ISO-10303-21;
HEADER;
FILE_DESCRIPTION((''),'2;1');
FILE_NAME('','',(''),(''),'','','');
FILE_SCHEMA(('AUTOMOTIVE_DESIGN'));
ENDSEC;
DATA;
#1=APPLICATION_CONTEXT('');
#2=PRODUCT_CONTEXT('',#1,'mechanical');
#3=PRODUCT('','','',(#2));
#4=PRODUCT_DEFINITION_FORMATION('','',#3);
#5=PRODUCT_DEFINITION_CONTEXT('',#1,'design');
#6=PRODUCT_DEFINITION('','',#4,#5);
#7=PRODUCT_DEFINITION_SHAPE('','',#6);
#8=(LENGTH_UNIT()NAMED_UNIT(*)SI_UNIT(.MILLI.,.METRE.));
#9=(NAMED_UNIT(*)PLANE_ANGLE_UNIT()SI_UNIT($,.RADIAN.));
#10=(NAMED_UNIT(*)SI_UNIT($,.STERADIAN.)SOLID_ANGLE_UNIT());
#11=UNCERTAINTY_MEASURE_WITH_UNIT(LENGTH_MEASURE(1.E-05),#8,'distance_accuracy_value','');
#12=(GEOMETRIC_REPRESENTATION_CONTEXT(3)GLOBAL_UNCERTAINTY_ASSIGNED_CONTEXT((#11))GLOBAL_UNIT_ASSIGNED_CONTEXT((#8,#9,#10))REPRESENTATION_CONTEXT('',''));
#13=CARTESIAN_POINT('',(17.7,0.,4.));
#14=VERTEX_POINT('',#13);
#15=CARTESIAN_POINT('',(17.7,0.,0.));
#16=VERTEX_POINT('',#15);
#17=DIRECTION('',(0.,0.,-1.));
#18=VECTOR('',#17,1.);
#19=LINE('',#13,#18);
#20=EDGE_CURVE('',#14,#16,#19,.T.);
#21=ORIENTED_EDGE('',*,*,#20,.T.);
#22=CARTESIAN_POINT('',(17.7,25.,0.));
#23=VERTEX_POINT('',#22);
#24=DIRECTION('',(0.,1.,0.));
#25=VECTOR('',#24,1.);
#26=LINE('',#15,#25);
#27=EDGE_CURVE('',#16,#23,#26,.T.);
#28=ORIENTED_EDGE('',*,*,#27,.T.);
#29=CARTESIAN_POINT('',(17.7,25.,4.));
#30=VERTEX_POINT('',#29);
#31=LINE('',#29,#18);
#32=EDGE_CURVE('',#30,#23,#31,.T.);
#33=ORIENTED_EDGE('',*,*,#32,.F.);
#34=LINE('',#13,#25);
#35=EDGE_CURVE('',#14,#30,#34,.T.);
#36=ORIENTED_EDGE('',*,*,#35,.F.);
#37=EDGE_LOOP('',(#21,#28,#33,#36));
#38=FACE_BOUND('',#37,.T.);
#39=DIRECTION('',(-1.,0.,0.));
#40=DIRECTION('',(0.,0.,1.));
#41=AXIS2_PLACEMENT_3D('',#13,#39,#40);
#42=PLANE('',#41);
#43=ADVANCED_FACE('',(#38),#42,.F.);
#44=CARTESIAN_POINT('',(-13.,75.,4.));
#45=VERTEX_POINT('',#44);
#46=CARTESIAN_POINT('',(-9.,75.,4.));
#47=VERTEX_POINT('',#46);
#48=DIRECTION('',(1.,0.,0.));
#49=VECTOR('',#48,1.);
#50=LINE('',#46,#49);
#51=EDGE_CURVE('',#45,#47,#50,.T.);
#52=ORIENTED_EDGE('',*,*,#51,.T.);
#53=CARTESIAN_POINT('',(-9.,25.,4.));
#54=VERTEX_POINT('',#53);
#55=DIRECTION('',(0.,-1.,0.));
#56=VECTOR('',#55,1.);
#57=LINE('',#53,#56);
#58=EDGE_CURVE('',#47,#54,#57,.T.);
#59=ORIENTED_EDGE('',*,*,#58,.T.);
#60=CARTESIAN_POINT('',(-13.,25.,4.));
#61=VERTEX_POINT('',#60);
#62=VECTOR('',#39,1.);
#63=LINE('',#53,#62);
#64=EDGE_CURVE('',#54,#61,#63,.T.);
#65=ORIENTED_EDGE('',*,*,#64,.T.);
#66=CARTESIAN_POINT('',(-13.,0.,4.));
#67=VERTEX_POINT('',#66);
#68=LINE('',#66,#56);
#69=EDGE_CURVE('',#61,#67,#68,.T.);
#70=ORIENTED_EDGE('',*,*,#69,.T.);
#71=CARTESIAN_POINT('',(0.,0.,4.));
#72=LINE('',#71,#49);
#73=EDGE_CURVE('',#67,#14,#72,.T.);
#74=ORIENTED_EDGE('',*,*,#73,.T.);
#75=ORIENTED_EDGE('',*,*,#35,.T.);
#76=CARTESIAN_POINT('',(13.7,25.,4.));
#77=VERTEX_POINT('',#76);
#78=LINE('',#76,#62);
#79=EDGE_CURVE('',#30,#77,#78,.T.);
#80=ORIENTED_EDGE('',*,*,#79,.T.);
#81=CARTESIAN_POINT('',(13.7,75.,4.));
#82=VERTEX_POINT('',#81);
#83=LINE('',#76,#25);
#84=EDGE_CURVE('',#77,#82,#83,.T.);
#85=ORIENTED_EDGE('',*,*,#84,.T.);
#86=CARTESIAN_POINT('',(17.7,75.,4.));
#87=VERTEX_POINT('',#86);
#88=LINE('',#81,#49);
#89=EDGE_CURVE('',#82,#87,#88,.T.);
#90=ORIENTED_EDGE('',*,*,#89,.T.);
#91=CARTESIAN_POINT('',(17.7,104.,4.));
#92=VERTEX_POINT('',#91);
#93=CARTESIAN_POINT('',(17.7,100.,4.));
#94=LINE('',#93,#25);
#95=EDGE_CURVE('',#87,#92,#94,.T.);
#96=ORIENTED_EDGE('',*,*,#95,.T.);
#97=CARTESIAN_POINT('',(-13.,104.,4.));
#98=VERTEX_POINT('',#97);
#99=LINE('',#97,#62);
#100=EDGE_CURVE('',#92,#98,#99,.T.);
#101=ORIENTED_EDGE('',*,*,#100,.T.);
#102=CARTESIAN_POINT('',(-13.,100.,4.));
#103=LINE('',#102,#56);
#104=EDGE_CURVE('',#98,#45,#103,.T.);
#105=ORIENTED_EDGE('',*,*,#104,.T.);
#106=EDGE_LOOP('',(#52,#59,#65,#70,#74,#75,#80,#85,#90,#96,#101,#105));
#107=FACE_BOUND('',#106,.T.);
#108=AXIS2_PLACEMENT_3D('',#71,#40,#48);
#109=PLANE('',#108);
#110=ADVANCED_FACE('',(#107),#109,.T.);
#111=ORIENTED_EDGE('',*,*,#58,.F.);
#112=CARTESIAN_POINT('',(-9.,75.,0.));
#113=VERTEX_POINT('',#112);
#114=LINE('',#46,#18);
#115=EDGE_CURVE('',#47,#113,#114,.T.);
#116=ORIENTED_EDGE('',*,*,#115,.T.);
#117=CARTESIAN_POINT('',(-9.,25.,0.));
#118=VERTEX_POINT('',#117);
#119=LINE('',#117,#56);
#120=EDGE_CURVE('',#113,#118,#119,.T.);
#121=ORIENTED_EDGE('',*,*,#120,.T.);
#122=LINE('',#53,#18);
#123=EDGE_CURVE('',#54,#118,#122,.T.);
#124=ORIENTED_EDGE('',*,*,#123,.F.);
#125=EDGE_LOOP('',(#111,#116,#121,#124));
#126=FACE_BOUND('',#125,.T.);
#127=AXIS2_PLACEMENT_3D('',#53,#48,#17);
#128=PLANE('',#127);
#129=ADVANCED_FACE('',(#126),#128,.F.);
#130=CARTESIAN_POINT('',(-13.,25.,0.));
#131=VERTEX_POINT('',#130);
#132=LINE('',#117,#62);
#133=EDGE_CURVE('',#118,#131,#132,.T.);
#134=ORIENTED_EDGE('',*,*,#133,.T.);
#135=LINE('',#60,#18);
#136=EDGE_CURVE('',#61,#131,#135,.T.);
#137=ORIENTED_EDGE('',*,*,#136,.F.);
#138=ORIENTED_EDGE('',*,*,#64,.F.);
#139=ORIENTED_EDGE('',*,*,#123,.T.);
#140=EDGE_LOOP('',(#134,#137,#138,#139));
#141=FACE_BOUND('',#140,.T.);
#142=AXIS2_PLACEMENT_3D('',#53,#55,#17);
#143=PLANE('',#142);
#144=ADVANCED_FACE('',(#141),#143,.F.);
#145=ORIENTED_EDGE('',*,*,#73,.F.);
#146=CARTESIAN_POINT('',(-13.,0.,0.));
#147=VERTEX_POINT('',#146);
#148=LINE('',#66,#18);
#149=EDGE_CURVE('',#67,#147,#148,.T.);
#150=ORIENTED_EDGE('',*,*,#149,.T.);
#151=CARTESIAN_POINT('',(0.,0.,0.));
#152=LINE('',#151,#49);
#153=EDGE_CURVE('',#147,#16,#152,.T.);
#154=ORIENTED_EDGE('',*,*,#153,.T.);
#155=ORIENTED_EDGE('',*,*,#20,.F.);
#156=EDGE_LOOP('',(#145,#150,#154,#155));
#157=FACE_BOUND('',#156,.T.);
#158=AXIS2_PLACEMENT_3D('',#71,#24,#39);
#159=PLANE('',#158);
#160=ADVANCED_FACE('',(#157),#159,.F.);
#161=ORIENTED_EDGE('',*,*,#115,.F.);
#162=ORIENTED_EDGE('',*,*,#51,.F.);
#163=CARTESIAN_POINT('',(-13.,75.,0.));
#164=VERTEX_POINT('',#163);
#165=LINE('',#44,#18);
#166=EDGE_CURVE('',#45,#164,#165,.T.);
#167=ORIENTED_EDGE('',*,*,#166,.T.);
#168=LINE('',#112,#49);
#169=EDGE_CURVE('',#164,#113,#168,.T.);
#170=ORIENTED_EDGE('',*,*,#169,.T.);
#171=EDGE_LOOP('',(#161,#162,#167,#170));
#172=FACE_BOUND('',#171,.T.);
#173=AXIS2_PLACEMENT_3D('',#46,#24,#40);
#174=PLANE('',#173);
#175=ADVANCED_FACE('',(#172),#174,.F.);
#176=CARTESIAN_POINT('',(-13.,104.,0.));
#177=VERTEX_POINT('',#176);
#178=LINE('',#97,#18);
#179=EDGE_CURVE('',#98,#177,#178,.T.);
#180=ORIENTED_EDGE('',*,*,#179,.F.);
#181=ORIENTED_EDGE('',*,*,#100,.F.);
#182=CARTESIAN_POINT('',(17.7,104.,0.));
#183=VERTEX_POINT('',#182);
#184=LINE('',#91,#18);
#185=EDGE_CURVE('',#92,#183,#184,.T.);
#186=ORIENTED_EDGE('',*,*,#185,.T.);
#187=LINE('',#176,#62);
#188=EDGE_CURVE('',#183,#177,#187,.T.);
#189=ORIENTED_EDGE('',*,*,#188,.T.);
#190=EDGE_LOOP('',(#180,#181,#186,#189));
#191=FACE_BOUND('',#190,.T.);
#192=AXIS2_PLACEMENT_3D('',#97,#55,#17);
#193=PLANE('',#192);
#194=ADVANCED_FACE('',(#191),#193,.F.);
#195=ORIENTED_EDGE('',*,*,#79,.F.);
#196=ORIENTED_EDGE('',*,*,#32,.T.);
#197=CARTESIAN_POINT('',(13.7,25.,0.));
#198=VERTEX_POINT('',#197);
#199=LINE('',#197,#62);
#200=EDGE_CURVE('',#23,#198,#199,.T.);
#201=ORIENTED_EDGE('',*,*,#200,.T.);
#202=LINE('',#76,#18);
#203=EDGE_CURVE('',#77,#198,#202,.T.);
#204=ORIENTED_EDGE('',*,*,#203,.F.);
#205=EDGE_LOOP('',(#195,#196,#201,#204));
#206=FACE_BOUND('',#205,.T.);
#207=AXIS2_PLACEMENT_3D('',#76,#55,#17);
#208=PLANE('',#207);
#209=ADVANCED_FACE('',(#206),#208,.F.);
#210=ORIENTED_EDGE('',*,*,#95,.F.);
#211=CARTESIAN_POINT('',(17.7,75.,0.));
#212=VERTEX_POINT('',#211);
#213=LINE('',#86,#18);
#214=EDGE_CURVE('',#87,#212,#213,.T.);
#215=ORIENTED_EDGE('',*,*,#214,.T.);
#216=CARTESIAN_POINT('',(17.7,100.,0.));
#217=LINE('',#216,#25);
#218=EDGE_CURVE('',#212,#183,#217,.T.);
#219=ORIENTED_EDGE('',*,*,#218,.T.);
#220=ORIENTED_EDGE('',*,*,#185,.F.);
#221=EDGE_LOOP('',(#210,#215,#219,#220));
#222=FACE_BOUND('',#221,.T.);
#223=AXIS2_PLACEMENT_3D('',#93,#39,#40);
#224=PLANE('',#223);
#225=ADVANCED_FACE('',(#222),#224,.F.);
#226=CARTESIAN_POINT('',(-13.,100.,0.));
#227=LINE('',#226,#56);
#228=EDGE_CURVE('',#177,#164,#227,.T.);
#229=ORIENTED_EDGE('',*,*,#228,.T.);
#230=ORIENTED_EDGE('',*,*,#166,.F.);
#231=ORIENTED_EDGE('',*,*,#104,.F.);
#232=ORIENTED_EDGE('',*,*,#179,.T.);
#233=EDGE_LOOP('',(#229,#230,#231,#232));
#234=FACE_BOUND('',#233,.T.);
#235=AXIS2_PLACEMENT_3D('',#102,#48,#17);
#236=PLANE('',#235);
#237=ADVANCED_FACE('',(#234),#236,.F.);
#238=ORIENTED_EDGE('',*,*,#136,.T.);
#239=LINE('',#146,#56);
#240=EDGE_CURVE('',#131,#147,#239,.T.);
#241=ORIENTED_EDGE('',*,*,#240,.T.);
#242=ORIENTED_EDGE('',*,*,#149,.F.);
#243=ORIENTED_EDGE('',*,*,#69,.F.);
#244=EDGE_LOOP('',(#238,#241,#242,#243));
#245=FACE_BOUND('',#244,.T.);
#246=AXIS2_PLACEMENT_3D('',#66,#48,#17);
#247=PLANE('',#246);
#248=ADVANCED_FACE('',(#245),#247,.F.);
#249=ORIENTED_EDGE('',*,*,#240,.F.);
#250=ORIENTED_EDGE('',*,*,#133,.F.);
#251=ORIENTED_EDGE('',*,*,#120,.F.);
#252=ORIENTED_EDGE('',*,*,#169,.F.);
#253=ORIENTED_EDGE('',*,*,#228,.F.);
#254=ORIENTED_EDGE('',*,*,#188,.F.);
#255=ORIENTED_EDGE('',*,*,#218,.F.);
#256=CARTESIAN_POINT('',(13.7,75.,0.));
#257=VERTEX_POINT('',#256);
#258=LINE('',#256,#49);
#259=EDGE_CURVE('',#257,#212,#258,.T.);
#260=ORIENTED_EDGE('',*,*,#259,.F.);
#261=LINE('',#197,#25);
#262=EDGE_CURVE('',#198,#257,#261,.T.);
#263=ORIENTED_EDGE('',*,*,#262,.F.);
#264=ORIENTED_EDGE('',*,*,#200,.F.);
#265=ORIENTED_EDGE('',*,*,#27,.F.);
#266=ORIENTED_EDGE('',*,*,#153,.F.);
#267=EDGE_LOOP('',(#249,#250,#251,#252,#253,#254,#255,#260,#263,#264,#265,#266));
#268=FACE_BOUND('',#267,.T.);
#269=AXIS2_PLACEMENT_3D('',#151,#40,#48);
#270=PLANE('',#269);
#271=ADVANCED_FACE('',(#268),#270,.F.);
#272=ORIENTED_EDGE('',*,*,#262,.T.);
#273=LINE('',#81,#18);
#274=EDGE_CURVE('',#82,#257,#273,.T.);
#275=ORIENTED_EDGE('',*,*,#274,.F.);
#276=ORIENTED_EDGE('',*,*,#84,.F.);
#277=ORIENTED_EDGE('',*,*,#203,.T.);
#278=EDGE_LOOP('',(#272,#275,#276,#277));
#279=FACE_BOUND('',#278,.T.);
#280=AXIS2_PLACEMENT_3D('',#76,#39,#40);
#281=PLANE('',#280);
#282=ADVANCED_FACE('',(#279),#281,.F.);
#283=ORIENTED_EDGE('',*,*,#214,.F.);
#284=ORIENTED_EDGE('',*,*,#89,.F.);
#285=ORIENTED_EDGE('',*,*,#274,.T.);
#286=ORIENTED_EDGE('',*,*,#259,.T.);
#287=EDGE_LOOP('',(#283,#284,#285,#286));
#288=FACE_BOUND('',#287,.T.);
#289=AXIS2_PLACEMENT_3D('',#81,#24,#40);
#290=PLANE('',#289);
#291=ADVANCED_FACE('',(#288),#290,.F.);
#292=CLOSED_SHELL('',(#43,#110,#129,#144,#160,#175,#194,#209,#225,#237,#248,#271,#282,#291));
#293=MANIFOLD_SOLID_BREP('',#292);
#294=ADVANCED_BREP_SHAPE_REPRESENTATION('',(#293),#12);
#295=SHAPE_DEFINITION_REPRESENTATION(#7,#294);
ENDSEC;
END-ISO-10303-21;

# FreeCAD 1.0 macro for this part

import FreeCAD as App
import Part
import Sketcher
from FreeCAD import Vector
Q = App.Units.Quantity


def add_polygon(sketch, points):
    """Adds a closed chain of lines whose ends are joined by coincident constraints."""
    first, n = sketch.GeometryCount, len(points)
    for a, b in zip(points, points[1:] + points[:1]):
        sketch.addGeometry(Part.LineSegment(App.Vector(*a, 0), App.Vector(*b, 0)), False)
    for i in range(n):
        sketch.addConstraint(Sketcher.Constraint("Coincident", first + i, 2, first + (i + 1) % n, 1))

doc = App.newDocument("Part")
params = doc.addObject("Spreadsheet::Sheet", "Params")
for row, (alias, value) in enumerate([
    ("sketch1_width", "4 mm"),
    ("sketch1_height", "25 mm"),
    ("sketch1_height2", "50 mm"),
    ("sketch1_height3", "29 mm"),
    ("sketch1_width2", "30.7 mm"),
    ("pad1_length", "4 mm"),
], start=1):
    params.set(f"A{row}", alias)
    params.set(f"B{row}", "=" + value)
    params.setAlias(f"B{row}", alias)

body = doc.addObject("PartDesign::Body", "Body")

sketch1 = doc.addObject("Sketcher::SketchObject", "Sketch")
body.addObject(sketch1)
sketch1.AttachmentSupport = (doc.XY_Plane, [""])
sketch1.MapMode = "FlatFace"
add_polygon(sketch1, [(-13, 0), (17.7, 0), (17.7, 25), (13.7, 25), (13.7, 75), (17.7, 75), (17.7, 104), (-13, 104), (-13, 75), (-9, 75), (-9, 25), (-13, 25)])
sketch1.addConstraint(Sketcher.Constraint("Horizontal", 0))
sketch1.addConstraint(Sketcher.Constraint("Vertical", 1))
sketch1.addConstraint(Sketcher.Constraint("Horizontal", 2))
sketch1.addConstraint(Sketcher.Constraint("Vertical", 3))
sketch1.addConstraint(Sketcher.Constraint("Horizontal", 4))
sketch1.addConstraint(Sketcher.Constraint("Vertical", 5))
sketch1.addConstraint(Sketcher.Constraint("Horizontal", 6))
sketch1.addConstraint(Sketcher.Constraint("Vertical", 7))
sketch1.addConstraint(Sketcher.Constraint("Horizontal", 8))
sketch1.addConstraint(Sketcher.Constraint("Vertical", 9))
sketch1.addConstraint(Sketcher.Constraint("Horizontal", 10))
sketch1.addConstraint(Sketcher.Constraint("Vertical", 11))
sketch1.addConstraint(Sketcher.Constraint("PointOnObject", 0, 2, -1))
sketch1.addConstraint(Sketcher.Constraint("Horizontal", 4, 2, 7, 2))
sketch1.addConstraint(Sketcher.Constraint("Horizontal", 2, 2, 9, 2))
sketch1.addConstraint(Sketcher.Constraint("Vertical", 1, 2, 4, 2))
sketch1.addConstraint(Sketcher.Constraint("Vertical", 7, 2, 10, 2))
sketch1.addConstraint(Sketcher.Constraint("Equal", 4, 8))
sketch1.addConstraint(Sketcher.Constraint("DistanceX", 2, 2, 2, 1, Q("4 mm")))
sketch1.addConstraint(Sketcher.Constraint("DistanceY", 1, 1, 1, 2, Q("25 mm")))
sketch1.addConstraint(Sketcher.Constraint("DistanceY", 3, 1, 3, 2, Q("50 mm")))
sketch1.addConstraint(Sketcher.Constraint("DistanceY", 5, 1, 5, 2, Q("29 mm")))
sketch1.addConstraint(Sketcher.Constraint("DistanceX", 0, 1, 0, 2, Q("30.7 mm")))
sketch1.addConstraint(Sketcher.Constraint("DistanceX", 6, 2, -1, 1, Q("13 mm")))
sketch1.setExpression("Constraints[30]", "Params.sketch1_width")
sketch1.setExpression("Constraints[31]", "Params.sketch1_height")
sketch1.setExpression("Constraints[32]", "Params.sketch1_height2")
sketch1.setExpression("Constraints[33]", "Params.sketch1_height3")
sketch1.setExpression("Constraints[34]", "Params.sketch1_width2")
pad1 = doc.addObject("PartDesign::Pad", "Pad")
body.addObject(pad1)
pad1.Profile = sketch1
pad1.setExpression("Length", "Params.pad1_length")

doc.recompute()
